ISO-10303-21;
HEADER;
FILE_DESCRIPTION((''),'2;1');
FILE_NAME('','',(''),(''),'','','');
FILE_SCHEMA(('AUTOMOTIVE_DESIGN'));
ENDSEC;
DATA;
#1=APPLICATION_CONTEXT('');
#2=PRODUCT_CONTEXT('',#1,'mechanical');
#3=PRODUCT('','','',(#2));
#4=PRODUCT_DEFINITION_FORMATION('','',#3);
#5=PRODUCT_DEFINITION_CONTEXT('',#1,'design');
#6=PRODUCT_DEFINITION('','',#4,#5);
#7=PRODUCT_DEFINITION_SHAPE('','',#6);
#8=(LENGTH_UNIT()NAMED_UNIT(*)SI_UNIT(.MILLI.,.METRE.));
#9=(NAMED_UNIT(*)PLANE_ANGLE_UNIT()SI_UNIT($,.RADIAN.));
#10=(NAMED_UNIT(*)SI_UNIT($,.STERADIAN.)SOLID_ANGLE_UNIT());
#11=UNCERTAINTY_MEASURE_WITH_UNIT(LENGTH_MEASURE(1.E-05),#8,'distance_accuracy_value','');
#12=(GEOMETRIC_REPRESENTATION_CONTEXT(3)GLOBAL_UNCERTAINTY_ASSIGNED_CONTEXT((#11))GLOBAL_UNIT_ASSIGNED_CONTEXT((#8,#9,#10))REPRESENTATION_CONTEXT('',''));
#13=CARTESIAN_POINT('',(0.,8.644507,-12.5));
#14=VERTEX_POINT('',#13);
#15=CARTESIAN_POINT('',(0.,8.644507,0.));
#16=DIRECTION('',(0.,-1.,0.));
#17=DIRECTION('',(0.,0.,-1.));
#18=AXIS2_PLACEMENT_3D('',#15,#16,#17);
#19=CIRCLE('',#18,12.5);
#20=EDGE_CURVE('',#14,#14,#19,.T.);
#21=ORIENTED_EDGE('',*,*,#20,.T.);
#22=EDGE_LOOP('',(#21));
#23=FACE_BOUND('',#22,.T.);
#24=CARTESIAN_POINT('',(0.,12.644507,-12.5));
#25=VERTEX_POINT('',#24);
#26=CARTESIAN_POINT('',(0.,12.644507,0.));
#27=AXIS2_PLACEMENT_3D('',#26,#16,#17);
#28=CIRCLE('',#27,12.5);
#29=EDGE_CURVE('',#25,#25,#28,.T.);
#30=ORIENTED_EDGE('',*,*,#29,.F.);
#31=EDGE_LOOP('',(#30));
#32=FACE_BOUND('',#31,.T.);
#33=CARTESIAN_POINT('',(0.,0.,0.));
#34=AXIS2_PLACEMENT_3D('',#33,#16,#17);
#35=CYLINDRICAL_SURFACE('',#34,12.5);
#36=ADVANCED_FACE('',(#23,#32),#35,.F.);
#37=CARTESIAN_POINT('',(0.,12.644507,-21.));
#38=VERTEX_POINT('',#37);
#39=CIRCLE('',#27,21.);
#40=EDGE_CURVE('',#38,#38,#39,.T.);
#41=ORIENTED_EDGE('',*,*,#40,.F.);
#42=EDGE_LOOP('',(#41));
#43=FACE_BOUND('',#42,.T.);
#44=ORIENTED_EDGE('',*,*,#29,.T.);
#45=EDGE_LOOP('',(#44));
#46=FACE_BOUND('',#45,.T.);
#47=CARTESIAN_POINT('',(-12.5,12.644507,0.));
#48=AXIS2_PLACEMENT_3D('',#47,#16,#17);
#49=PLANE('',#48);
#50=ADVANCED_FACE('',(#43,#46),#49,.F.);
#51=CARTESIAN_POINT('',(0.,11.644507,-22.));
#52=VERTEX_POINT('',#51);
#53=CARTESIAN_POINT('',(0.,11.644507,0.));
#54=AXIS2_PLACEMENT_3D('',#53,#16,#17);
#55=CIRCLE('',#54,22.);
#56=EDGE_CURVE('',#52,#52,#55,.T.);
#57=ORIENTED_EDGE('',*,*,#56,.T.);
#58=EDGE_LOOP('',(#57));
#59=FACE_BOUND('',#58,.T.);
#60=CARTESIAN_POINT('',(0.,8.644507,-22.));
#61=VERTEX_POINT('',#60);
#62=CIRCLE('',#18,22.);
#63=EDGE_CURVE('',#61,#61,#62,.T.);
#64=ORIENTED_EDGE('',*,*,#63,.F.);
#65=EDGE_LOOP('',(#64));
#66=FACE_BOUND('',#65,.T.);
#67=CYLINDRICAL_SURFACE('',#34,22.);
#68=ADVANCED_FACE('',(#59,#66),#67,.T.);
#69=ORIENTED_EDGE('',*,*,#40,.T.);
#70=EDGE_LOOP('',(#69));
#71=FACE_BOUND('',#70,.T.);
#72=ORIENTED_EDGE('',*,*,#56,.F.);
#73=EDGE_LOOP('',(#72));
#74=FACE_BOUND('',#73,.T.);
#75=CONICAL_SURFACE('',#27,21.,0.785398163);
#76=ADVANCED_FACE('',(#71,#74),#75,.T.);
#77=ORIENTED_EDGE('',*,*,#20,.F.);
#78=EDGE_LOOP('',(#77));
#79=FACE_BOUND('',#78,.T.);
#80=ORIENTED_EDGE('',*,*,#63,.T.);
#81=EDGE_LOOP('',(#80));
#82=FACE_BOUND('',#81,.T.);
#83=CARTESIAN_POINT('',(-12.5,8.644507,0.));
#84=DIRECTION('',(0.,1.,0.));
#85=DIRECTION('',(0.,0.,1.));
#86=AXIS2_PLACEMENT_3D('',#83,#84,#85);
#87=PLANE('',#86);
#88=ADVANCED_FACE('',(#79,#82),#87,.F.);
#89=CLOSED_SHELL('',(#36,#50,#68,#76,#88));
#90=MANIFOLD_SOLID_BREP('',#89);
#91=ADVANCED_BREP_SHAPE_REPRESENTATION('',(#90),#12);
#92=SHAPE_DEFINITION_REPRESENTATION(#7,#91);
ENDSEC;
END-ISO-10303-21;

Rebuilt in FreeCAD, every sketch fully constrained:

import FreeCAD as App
import Part
import Sketcher
Q = App.Units.Quantity


def add_polygon(sketch, points):
    """Adds a closed chain of lines whose ends are joined by coincident constraints."""
    first, n = sketch.GeometryCount, len(points)
    for a, b in zip(points, points[1:] + points[:1]):
        sketch.addGeometry(Part.LineSegment(App.Vector(*a, 0), App.Vector(*b, 0)), False)
    for i in range(n):
        sketch.addConstraint(Sketcher.Constraint("Coincident", first + i, 2, first + (i + 1) % n, 1))

doc = App.newDocument("Part")
params = doc.addObject("Spreadsheet::Sheet", "Params")
for row, (alias, value) in enumerate([
    ("sketch1_height", "3 mm"),
    ("sketch1_height2", "4 mm"),
    ("sketch1_width", "9.5 mm"),
    ("revolution_angle", "360 deg"),
], start=1):
    params.set(f"A{row}", alias)
    params.set(f"B{row}", "=" + value)
    params.setAlias(f"B{row}", alias)

body = doc.addObject("PartDesign::Body", "Body")

sketch1 = doc.addObject("Sketcher::SketchObject", "Sketch")
body.addObject(sketch1)
sketch1.AttachmentSupport = (doc.XY_Plane, [""])
sketch1.MapMode = "FlatFace"
add_polygon(sketch1, [(-21, 12.6), (-22, 11.6), (-22, 8.6), (-12.5, 8.6), (-12.5, 12.6)])
sketch1.addConstraint([
    Sketcher.Constraint("Vertical", 1),
    Sketcher.Constraint("Horizontal", 2),
    Sketcher.Constraint("Vertical", 3),
    Sketcher.Constraint("Horizontal", 4),
    Sketcher.Constraint("DistanceY", 1, 2, 1, 1, Q("3 mm")),
    Sketcher.Constraint("DistanceY", 3, 1, 3, 2, Q("4 mm")),
    Sketcher.Constraint("Angle", 0, Q("-135 deg")),
    Sketcher.Constraint("DistanceX", 2, 1, 2, 2, Q("9.5 mm")),
    Sketcher.Constraint("DistanceX", 0, 2, -1, 1, Q("22 mm")),
    Sketcher.Constraint("DistanceY", -1, 1, 0, 2, Q("11.644507 mm")),
])
sketch1.setExpression("Constraints[9]", "Params.sketch1_height")
sketch1.setExpression("Constraints[10]", "Params.sketch1_height2")
sketch1.setExpression("Constraints[12]", "Params.sketch1_width")
revolution = doc.addObject("PartDesign::Revolution", "Revolution")
body.addObject(revolution)
revolution.Profile = sketch1
revolution.ReferenceAxis = (sketch1, ["V_Axis"])
revolution.setExpression("Angle", "Params.revolution_angle")

doc.recompute()
